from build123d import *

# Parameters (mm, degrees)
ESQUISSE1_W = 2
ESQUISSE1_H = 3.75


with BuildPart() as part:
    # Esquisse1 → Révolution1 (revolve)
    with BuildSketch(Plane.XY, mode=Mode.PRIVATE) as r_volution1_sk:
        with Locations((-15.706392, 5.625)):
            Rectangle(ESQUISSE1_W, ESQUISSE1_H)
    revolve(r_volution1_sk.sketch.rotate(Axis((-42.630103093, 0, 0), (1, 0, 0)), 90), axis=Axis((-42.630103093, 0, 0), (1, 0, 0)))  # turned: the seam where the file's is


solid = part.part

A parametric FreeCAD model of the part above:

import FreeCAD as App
import Part
import Sketcher
from FreeCAD import Vector
Q = App.Units.Quantity

doc = App.newDocument("Part")
body = doc.addObject("PartDesign::Body", "Body")

# Sketch on XY plane
sketch1 = body.newObject("Sketcher::SketchObject", "Sketch")
sketch1.AttachmentSupport = (doc.getObject("XY_Plane"), [""])
sketch1.MapMode = "FlatFace"
sketch1.addGeometry(Part.LineSegment(Vector(-16.7, 7.5, 0), Vector(-16.7, 3.8, 0)), False)
sketch1.addGeometry(Part.LineSegment(Vector(-16.7, 3.8, 0), Vector(-14.7, 3.8, 0)), False)
sketch1.addGeometry(Part.LineSegment(Vector(-14.7, 3.8, 0), Vector(-14.7, 7.5, 0)), False)
sketch1.addGeometry(Part.LineSegment(Vector(-14.7, 7.5, 0), Vector(-16.7, 7.5, 0)), False)
sketch1.addConstraint(Sketcher.Constraint("Coincident", 0, 2, 1, 1))
sketch1.addConstraint(Sketcher.Constraint("Coincident", 1, 2, 2, 1))
sketch1.addConstraint(Sketcher.Constraint("Coincident", 2, 2, 3, 1))
sketch1.addConstraint(Sketcher.Constraint("Coincident", 3, 2, 0, 1))
sketch1.addConstraint(Sketcher.Constraint("Vertical", 0))
sketch1.addConstraint(Sketcher.Constraint("Horizontal", 1))
sketch1.addConstraint(Sketcher.Constraint("Vertical", 2))
sketch1.addConstraint(Sketcher.Constraint("Horizontal", 3))
sketch1.addConstraint(Sketcher.Constraint("DistanceX", 1, 1, 1, 2, Q("2 mm")))
sketch1.addConstraint(Sketcher.Constraint("DistanceY", 0, 2, 0, 1, Q("3.75 mm")))
sketch1.addConstraint(Sketcher.Constraint("DistanceY", -1, 1, 2, 2, Q("7.5 mm")))
sketch1.addConstraint(Sketcher.Constraint("DistanceX", 1, 2, -1, 1, Q("14.706392 mm")))
revolution = body.newObject("PartDesign::Revolution", "Revolution")
revolution.Profile = sketch1
revolution.ReferenceAxis = (sketch1, ["H_Axis"])
revolution.Angle = 360

doc.recompute()
